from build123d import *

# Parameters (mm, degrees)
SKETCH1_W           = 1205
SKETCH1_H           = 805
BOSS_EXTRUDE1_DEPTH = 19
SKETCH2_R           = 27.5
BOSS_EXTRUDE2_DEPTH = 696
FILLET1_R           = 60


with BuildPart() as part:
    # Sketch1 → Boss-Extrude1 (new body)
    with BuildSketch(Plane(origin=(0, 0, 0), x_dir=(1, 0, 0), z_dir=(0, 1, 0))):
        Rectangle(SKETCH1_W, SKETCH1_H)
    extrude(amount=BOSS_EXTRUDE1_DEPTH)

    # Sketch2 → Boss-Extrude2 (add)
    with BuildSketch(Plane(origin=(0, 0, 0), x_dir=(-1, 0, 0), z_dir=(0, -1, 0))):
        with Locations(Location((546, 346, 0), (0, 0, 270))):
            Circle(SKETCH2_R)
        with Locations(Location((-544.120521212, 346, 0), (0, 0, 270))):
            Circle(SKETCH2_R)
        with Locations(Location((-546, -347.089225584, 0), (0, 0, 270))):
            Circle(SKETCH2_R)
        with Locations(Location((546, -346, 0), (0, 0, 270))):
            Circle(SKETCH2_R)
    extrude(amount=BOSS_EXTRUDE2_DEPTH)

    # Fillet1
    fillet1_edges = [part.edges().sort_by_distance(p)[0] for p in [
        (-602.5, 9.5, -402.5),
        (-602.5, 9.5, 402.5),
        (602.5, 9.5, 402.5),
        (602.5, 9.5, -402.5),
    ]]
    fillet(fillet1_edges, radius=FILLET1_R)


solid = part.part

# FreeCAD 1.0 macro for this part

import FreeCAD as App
import Part
import Sketcher


def edges_at(feature, points):
    """Names of the edges that pass closest to the given points."""
    edges = feature.Shape.Edges
    near = lambda p: min(range(len(edges)), key=lambda i: edges[i].distToShape(Part.Vertex(*p))[0])
    return sorted({f"Edge{near(p) + 1}" for p in points})

doc = App.newDocument("Part")
body = doc.addObject("PartDesign::Body", "Body")

sketch1 = doc.addObject("Sketcher::SketchObject", "Sketch")
body.addObject(sketch1)
sketch1.AttachmentSupport = (doc.XZ_Plane, [""])
sketch1.MapMode = "FlatFace"
sketch1.addGeometry([
    Part.LineSegment(App.Vector(-602, -402, 0), App.Vector(-602, 402, 0)),
    Part.LineSegment(App.Vector(-602, 402, 0), App.Vector(602, 402, 0)),
    Part.LineSegment(App.Vector(602, 402, 0), App.Vector(602, -402, 0)),
    Part.LineSegment(App.Vector(602, -402, 0), App.Vector(-602, -402, 0)),
], False)
sketch1.addConstraint([
    Sketcher.Constraint("Coincident", 0, 2, 1, 1),
    Sketcher.Constraint("Coincident", 1, 2, 2, 1),
    Sketcher.Constraint("Coincident", 2, 2, 3, 1),
    Sketcher.Constraint("Coincident", 3, 2, 0, 1),
    Sketcher.Constraint("Vertical", 0),
    Sketcher.Constraint("Horizontal", 1),
    Sketcher.Constraint("Vertical", 2),
    Sketcher.Constraint("Horizontal", 3),
    Sketcher.Constraint("Symmetric", 0, 2, 2, 2, -1, 1),
    Sketcher.Constraint("DistanceX", 1, 1, 1, 2, 1205.0),
    Sketcher.Constraint("DistanceY", 0, 1, 0, 2, 805.0),
])
pad1 = doc.addObject("PartDesign::Pad", "Pad")
body.addObject(pad1)
pad1.Profile = sketch1
pad1.Length = 19
pad1.Reversed = True

sketch2 = doc.addObject("Sketcher::SketchObject", "Sketch001")
body.addObject(sketch2)
sketch2.AttachmentSupport = (doc.XZ_Plane, [""])
sketch2.MapMode = "FlatFace"
sketch2.addGeometry([
    Part.Circle(App.Vector(-546, -346, 0), App.Vector(0, 0, 1), 28),
    Part.Circle(App.Vector(544, -346, 0), App.Vector(0, 0, 1), 28),
    Part.Circle(App.Vector(546, 347, 0), App.Vector(0, 0, 1), 28),
    Part.Circle(App.Vector(-546, 346, 0), App.Vector(0, 0, 1), 28),
], False)
sketch2.addConstraint([
    Sketcher.Constraint("Equal", 0, 1),
    Sketcher.Constraint("Equal", 1, 2),
    Sketcher.Constraint("Equal", 2, 3),
    Sketcher.Constraint("Symmetric", 0, 3, 3, 3, -1),
    Sketcher.Constraint("Horizontal", 0, 3, 1, 3),
    Sketcher.Constraint("Diameter", 0, 55.0),
    Sketcher.Constraint("DistanceX", 0, 3, -1, 1, 546.0),
    Sketcher.Constraint("DistanceY", 0, 3, -1, 1, 346.0),
    Sketcher.Constraint("DistanceX", -1, 1, 2, 3, 546.0),
    Sketcher.Constraint("DistanceX", -1, 1, 1, 3, 544.120521),
    Sketcher.Constraint("DistanceY", -1, 1, 2, 3, 347.089226),
])
pad2 = doc.addObject("PartDesign::Pad", "Pad001")
body.addObject(pad2)
pad2.Profile = sketch2
pad2.Length = 696
doc.recompute()

fillet = doc.addObject("PartDesign::Fillet", "Fillet")
body.addObject(fillet)
fillet.Base = (pad2, edges_at(pad2, [
    (-602.5, 9.5, -402.5),
    (-602.5, 9.5, 402.5),
    (602.5, 9.5, 402.5),
    (602.5, 9.5, -402.5),
]))
fillet.Radius = 60

doc.recompute()
